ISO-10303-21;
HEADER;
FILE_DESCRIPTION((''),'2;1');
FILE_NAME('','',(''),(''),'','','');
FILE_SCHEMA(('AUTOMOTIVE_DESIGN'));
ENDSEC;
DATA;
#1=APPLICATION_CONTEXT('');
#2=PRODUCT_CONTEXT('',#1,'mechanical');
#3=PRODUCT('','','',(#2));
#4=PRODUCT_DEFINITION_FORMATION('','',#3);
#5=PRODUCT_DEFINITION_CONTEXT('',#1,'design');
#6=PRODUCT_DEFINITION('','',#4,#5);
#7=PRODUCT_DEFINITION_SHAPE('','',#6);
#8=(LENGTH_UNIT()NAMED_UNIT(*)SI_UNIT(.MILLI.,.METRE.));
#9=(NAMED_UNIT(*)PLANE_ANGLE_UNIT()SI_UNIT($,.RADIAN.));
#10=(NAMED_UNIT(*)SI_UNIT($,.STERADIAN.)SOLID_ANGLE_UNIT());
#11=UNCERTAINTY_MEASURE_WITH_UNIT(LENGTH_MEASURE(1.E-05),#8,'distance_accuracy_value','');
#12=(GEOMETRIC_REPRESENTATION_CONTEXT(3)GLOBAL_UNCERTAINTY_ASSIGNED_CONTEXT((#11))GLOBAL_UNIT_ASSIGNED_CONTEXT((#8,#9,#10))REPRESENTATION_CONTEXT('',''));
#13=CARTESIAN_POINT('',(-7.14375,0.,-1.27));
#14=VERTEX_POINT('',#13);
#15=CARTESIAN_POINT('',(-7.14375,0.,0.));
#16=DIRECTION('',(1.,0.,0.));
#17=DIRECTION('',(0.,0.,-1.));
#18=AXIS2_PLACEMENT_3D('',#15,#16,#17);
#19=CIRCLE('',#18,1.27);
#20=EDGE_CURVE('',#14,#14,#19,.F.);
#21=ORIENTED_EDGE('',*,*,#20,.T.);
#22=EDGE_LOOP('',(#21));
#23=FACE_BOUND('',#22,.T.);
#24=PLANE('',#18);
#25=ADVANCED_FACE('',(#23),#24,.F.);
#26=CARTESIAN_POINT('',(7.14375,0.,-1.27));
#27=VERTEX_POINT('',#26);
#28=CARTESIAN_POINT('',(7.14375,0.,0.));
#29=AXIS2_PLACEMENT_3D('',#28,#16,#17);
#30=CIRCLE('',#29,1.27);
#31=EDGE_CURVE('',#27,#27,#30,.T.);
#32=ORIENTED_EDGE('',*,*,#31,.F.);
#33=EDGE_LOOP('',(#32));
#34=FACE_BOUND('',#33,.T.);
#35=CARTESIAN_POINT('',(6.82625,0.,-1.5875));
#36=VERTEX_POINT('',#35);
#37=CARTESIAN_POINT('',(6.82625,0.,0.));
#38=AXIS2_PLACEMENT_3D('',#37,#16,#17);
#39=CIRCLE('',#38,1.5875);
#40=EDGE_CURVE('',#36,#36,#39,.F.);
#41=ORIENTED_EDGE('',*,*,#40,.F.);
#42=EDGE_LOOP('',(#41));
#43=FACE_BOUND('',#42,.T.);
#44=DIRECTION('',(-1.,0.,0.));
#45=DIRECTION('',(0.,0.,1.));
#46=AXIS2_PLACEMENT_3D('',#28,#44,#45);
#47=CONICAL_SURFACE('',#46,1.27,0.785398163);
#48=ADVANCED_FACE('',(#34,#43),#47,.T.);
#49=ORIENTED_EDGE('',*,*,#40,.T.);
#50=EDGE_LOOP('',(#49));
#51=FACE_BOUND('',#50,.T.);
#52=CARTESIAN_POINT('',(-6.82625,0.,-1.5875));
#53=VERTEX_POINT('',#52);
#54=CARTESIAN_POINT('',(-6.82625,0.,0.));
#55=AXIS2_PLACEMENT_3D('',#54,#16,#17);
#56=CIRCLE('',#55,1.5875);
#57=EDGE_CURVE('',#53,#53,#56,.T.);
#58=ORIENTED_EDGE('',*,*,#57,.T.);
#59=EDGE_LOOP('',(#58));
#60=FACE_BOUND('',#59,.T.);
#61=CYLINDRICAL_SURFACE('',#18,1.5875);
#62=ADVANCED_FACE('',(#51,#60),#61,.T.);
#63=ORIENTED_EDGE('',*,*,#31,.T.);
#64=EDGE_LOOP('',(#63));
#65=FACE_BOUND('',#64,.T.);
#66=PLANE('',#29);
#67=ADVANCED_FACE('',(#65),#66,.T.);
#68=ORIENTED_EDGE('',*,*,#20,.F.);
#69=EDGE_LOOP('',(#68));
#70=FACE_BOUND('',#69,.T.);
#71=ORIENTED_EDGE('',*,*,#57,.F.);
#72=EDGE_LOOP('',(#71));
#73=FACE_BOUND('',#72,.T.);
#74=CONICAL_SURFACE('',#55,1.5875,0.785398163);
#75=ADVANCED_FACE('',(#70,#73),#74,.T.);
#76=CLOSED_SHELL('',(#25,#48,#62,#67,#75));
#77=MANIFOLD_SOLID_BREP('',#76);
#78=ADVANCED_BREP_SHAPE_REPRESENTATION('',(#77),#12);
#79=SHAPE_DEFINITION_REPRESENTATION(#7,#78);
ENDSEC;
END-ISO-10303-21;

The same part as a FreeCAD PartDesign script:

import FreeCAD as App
import Part
import Sketcher
from FreeCAD import Vector
Q = App.Units.Quantity


def edges_at(feature, points):
    """Names of the edges that pass closest to the given points."""
    edges = feature.Shape.Edges
    near = lambda p: min(range(len(edges)), key=lambda i: edges[i].distToShape(Part.Vertex(*p))[0])
    return sorted({f"Edge{near(p) + 1}" for p in points})

doc = App.newDocument("Part")
body = doc.addObject("PartDesign::Body", "Body")

sketch1 = doc.addObject("Sketcher::SketchObject", "Sketch")
body.addObject(sketch1)
sketch1.AttachmentSupport = (doc.YZ_Plane, [""])
sketch1.MapMode = "FlatFace"
sketch1.addGeometry(Part.Circle(Vector(0, 0, 0), Vector(0, 0, 1), 1.6), False)
sketch1.addConstraint([
    Sketcher.Constraint("Coincident", 0, 3, -1, 1),
    Sketcher.Constraint("Diameter", 0, Q("0.125 in")),
])
pad1 = doc.addObject("PartDesign::Pad", "Pad")
body.addObject(pad1)
pad1.Profile = sketch1
pad1.Type = "TwoLengths"
pad1.Length = Q("0.28125 in")
pad1.Length2 = Q("0.28125 in")
doc.recompute()

chamfer = doc.addObject("PartDesign::Chamfer", "Chamfer")
body.addObject(chamfer)
chamfer.Base = (pad1, edges_at(pad1, [(-7.144, 0, 1.587), (7.144, 0, 1.587)]))
chamfer.Size = Q("0.0125 in")

doc.recompute()
